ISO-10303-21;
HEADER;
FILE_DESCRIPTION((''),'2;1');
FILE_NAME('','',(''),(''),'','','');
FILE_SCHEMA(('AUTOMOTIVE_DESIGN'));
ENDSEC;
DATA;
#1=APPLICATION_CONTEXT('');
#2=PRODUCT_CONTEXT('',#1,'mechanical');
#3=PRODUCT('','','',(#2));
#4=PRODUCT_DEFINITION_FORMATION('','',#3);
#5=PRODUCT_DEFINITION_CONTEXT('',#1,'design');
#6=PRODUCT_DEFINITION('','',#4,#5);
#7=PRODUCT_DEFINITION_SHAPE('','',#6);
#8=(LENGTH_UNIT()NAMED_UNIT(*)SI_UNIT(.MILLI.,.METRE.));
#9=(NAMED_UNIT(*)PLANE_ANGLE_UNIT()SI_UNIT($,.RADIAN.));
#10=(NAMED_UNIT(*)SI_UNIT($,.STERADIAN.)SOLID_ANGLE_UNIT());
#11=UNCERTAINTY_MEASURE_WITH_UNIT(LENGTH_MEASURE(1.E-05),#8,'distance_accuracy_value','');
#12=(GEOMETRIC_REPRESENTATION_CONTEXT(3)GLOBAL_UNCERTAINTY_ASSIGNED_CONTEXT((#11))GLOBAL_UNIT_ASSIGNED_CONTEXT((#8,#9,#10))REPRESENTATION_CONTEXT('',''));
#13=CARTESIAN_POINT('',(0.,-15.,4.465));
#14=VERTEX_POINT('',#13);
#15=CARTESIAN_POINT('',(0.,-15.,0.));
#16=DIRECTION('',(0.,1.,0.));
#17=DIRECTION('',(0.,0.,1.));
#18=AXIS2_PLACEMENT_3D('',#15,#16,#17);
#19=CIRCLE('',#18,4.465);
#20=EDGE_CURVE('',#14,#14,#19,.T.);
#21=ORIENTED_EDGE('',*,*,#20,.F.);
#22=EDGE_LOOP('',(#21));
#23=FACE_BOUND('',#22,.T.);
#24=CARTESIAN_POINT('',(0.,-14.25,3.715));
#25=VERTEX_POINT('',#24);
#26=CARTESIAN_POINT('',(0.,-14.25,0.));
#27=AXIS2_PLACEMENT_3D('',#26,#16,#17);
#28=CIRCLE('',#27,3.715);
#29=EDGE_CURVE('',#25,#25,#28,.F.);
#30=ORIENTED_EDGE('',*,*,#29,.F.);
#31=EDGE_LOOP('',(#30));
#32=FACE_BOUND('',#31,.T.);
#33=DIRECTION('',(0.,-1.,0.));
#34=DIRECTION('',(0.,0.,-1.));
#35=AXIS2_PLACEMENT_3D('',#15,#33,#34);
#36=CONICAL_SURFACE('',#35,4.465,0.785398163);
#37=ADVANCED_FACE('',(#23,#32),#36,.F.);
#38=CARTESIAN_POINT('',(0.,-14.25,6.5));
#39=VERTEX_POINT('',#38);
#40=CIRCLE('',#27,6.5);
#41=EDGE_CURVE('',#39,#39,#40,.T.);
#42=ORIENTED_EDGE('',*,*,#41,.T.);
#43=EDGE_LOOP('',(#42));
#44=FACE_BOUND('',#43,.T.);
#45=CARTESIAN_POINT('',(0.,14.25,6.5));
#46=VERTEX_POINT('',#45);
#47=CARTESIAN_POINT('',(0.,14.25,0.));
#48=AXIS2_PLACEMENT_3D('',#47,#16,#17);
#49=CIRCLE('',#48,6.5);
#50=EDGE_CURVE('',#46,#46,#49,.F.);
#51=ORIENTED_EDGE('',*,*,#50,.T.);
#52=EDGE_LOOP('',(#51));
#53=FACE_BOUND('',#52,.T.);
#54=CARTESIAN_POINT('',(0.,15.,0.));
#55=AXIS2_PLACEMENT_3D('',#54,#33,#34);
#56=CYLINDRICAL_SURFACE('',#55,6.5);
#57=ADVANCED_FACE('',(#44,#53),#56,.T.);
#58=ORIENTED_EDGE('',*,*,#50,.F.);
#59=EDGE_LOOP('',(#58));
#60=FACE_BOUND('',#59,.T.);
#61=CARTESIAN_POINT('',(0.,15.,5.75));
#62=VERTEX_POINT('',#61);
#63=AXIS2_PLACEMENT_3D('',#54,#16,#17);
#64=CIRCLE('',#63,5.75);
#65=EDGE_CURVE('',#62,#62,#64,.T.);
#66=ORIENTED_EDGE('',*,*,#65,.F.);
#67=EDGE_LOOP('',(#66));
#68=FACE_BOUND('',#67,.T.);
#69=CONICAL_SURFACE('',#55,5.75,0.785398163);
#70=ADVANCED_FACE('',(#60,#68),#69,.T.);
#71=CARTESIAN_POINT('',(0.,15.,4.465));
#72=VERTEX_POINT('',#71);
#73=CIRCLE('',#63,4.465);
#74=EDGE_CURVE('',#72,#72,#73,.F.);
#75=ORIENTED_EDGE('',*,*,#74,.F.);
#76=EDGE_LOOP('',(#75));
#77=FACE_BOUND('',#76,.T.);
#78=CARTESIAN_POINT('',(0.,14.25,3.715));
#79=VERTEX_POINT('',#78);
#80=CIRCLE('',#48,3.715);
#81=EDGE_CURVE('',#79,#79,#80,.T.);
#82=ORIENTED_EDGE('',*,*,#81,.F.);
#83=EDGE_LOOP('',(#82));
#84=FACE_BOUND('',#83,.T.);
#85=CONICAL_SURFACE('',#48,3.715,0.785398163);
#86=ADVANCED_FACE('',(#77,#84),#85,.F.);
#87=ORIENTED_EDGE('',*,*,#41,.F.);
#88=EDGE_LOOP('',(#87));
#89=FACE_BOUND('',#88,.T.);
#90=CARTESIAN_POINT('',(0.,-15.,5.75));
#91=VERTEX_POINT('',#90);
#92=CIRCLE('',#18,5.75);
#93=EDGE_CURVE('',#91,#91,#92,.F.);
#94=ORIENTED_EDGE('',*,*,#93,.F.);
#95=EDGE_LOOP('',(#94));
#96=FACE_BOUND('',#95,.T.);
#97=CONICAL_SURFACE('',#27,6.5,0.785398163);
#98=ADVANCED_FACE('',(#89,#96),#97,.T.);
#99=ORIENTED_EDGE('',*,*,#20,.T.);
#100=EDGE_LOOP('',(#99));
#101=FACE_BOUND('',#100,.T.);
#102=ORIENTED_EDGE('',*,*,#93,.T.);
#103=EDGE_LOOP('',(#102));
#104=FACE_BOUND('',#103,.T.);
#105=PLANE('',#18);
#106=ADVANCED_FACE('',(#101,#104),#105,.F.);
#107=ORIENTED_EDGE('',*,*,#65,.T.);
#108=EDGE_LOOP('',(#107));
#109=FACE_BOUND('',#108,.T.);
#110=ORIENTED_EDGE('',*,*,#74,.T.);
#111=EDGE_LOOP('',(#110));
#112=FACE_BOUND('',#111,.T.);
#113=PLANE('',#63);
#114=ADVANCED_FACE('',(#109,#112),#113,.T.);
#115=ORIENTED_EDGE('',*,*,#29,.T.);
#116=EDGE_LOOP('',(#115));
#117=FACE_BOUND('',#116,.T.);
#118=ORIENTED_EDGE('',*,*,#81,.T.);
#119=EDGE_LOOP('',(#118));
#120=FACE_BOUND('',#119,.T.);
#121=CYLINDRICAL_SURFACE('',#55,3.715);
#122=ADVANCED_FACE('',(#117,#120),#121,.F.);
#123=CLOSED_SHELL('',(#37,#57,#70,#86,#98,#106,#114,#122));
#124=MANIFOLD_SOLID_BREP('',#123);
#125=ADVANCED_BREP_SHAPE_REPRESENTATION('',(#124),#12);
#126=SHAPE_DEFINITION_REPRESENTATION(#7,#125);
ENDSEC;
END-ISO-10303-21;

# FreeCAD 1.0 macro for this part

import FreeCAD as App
import Part
import Sketcher

V = App.Vector


def edges_at(feature, points):
    """Names of the edges that pass closest to the given points."""
    edges = feature.Shape.Edges
    near = lambda p: min(range(len(edges)), key=lambda i: edges[i].distToShape(Part.Vertex(*p))[0])
    return sorted({f"Edge{near(p) + 1}" for p in points})

doc = App.newDocument("Part")
body = doc.addObject("PartDesign::Body", "Body")

# Sketch on XZ plane
sketch1 = doc.addObject("Sketcher::SketchObject", "Sketch")
body.addObject(sketch1)
sketch1.AttachmentSupport = (doc.XZ_Plane, [""])
sketch1.MapMode = "FlatFace"
sketch1.addGeometry([
    Part.Circle(V(0, 0, 0), V(0, 0, 1), 6.5),
    Part.Circle(V(0, 0, 0), V(0, 0, 1), 3.715),
], False)
sketch1.addConstraint([
    Sketcher.Constraint("Coincident", 0, 3, -1, 1),
    Sketcher.Constraint("Coincident", 1, 3, -1, 1),
    Sketcher.Constraint("Diameter", 0, 13.0),
    Sketcher.Constraint("Diameter", 1, 7.43),
])
pad1 = doc.addObject("PartDesign::Pad", "Pad")
body.addObject(pad1)
pad1.Profile = sketch1
pad1.Length = 30
pad1.Midplane = True
doc.recompute()

chamfer = doc.addObject("PartDesign::Chamfer", "Chamfer")
body.addObject(chamfer)
chamfer.Base = (pad1, edges_at(pad1, [
    (0, -15, -6.5),
    (0, 15, -6.5),
    (0, -15, -3.715),
    (0, 15, -3.715),
]))
chamfer.Size = 0.75

doc.recompute()
